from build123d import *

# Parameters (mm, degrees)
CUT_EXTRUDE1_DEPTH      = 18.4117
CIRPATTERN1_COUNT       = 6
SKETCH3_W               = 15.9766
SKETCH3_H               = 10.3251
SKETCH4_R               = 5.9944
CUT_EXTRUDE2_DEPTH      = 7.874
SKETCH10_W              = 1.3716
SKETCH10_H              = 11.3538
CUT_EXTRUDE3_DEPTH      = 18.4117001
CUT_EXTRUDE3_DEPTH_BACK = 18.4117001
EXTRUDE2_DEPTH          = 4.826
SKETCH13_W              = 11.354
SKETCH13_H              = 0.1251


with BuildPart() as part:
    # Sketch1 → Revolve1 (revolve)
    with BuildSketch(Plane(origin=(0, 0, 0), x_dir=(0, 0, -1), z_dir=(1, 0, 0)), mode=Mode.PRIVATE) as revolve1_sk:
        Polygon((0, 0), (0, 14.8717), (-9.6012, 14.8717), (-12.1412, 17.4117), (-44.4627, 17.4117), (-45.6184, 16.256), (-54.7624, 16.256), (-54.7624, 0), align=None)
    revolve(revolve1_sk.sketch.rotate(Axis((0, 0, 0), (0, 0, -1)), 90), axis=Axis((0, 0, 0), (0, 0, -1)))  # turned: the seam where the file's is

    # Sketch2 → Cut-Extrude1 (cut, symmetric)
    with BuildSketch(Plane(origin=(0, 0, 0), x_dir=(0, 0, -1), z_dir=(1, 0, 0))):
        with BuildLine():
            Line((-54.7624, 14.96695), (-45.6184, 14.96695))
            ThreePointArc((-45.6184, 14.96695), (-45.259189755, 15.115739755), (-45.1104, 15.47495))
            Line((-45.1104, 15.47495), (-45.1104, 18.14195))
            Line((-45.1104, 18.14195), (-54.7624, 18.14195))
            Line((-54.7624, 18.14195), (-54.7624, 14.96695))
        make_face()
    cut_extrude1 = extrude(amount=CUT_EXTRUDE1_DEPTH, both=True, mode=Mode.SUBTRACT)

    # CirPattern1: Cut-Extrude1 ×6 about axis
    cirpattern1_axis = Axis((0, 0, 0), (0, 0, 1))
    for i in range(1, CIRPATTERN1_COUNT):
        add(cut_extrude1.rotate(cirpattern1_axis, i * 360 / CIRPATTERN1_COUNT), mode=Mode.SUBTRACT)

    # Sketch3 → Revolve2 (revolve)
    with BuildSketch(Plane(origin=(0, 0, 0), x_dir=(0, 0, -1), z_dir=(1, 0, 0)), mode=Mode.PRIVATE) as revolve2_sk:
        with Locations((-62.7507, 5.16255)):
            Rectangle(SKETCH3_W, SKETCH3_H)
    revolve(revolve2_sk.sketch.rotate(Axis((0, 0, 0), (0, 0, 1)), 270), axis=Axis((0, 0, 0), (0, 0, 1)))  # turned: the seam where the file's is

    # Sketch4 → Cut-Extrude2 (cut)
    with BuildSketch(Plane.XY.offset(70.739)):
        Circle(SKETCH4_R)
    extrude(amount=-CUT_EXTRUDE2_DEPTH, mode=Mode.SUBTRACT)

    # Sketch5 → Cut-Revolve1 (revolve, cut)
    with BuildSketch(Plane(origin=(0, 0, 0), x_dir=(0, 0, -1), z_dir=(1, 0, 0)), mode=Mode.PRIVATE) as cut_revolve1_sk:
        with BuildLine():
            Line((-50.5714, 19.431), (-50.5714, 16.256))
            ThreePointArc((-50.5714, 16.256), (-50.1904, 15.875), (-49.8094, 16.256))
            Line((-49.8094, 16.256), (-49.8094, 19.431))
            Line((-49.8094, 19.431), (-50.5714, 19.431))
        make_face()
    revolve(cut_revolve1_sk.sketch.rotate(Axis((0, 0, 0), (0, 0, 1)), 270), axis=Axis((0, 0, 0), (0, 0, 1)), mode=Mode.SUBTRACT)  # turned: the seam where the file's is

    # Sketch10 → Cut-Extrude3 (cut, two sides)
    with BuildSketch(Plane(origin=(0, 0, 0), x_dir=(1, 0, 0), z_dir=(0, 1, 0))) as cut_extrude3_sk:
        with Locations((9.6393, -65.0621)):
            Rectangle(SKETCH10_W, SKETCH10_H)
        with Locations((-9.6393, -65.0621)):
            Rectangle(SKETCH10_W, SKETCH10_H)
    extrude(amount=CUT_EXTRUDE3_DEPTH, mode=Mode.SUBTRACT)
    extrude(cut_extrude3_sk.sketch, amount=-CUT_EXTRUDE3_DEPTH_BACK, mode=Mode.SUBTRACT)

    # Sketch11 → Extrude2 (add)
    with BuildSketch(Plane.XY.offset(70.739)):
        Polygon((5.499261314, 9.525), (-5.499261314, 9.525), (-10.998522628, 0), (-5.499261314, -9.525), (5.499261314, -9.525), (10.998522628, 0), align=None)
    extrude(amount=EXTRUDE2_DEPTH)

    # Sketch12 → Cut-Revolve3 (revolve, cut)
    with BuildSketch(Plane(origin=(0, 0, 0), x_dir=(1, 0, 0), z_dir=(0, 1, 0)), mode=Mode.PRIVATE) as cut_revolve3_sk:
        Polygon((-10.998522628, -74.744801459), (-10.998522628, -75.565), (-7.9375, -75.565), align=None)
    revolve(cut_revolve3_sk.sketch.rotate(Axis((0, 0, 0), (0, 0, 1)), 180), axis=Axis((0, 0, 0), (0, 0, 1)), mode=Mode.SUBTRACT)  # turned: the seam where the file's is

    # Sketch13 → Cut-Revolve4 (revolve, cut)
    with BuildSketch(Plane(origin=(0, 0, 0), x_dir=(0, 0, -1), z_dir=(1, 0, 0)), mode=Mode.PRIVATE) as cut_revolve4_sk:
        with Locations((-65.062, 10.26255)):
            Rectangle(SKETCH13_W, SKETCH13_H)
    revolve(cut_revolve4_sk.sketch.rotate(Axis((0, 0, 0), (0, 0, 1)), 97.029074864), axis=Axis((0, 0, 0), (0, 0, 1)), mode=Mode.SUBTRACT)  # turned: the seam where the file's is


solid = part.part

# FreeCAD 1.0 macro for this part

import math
import FreeCAD as App
import Part
import Sketcher
Q = App.Units.Quantity


def add_polygon(sketch, points):
    """Adds a closed chain of lines whose ends are joined by coincident constraints."""
    first, n = sketch.GeometryCount, len(points)
    for a, b in zip(points, points[1:] + points[:1]):
        sketch.addGeometry(Part.LineSegment(App.Vector(*a, 0), App.Vector(*b, 0)), False)
    for i in range(n):
        sketch.addConstraint(Sketcher.Constraint("Coincident", first + i, 2, first + (i + 1) % n, 1))

doc = App.newDocument("Part")
body = doc.addObject("PartDesign::Body", "Body")

# Sketch on YZ plane
sketch1 = body.newObject("Sketcher::SketchObject", "Sketch")
sketch1.AttachmentSupport = (doc.getObject("YZ_Plane"), [""])
sketch1.MapMode = "FlatFace"
add_polygon(sketch1, [(0, 0), (14.9, 0), (14.9, 9.6), (17.4, 12.1), (17.4, 44.5), (16.3, 45.6), (16.3, 54.8), (0, 54.8)])  # lines 0-7
sketch1.addConstraint(Sketcher.Constraint("Horizontal", 0))
sketch1.addConstraint(Sketcher.Constraint("Vertical", 1))
sketch1.addConstraint(Sketcher.Constraint("Vertical", 3))
sketch1.addConstraint(Sketcher.Constraint("Vertical", 5))
sketch1.addConstraint(Sketcher.Constraint("Horizontal", 6))
sketch1.addConstraint(Sketcher.Constraint("Vertical", 7))
sketch1.addConstraint(Sketcher.Constraint("Coincident", 7, 2, -1, 1))
sketch1.addConstraint(Sketcher.Constraint("Perpendicular", 2, 4))
sketch1.addConstraint(Sketcher.Constraint("Angle", 2, Q("45 deg")))
sketch1.addConstraint(Sketcher.Constraint("DistanceX", 6, 2, 6, 1, Q("0.64 in")))
sketch1.addConstraint(Sketcher.Constraint("DistanceY", 5, 1, 5, 2, Q("0.36 in")))
sketch1.addConstraint(Sketcher.Constraint("DistanceX", 1, 2, 2, 2, Q("0.1 in")))
sketch1.addConstraint(Sketcher.Constraint("DistanceY", 1, 1, 1, 2, Q("0.378 in")))
sketch1.addConstraint(Sketcher.Constraint("DistanceY", 7, 2, 7, 1, Q("2.156 in")))
sketch1.addConstraint(Sketcher.Constraint("DistanceX", 0, 1, 0, 2, Q("0.5855 in")))
revolution = body.newObject("PartDesign::Revolution", "Revolution")
revolution.Profile = sketch1
revolution.ReferenceAxis = (sketch1, ["V_Axis"])
revolution.Angle = 360

# Sketch on YZ plane
sketch2 = body.newObject("Sketcher::SketchObject", "Sketch001")
sketch2.AttachmentSupport = (doc.getObject("YZ_Plane"), [""])
sketch2.MapMode = "FlatFace"
sketch2.addGeometry(Part.LineSegment(App.Vector(15, 54.8, 0), App.Vector(15, 45.6, 0)), False)
sketch2.addGeometry(Part.ArcOfCircle(Part.Circle(App.Vector(15.5, 45.6, 0), App.Vector(0, 0, 1), 0.5), math.radians(180), math.radians(270)), False)
sketch2.addGeometry(Part.LineSegment(App.Vector(15.5, 45.1, 0), App.Vector(18.1, 45.1, 0)), False)
sketch2.addGeometry(Part.LineSegment(App.Vector(18.1, 45.1, 0), App.Vector(18.1, 54.8, 0)), False)
sketch2.addGeometry(Part.LineSegment(App.Vector(18.1, 54.8, 0), App.Vector(15, 54.8, 0)), False)
sketch2.addConstraint(Sketcher.Constraint("Tangent", 0, 2, 1, 1))
sketch2.addConstraint(Sketcher.Constraint("Tangent", 1, 2, 2, 1))
sketch2.addConstraint(Sketcher.Constraint("Coincident", 2, 2, 3, 1))
sketch2.addConstraint(Sketcher.Constraint("Coincident", 3, 2, 4, 1))
sketch2.addConstraint(Sketcher.Constraint("Coincident", 4, 2, 0, 1))
sketch2.addConstraint(Sketcher.Constraint("Vertical", 0))
sketch2.addConstraint(Sketcher.Constraint("Horizontal", 2))
sketch2.addConstraint(Sketcher.Constraint("Vertical", 3))
sketch2.addConstraint(Sketcher.Constraint("Horizontal", 4))
sketch2.addConstraint(Sketcher.Constraint("Radius", 1, Q("0.02 in")))
sketch2.addConstraint(Sketcher.Constraint("DistanceY", 0, 2, 0, 1, Q("0.36 in")))
sketch2.addConstraint(Sketcher.Constraint("DistanceX", 2, 1, 2, 2, Q("0.105 in")))
sketch2.addConstraint(Sketcher.Constraint("DistanceY", -1, 1, 1, 3, Q("1.796 in")))
sketch2.addConstraint(Sketcher.Constraint("DistanceX", -1, 1, 1, 3, 15.47495))
pocket1 = body.newObject("PartDesign::Pocket", "Pocket")
pocket1.Profile = sketch2
pocket1.Length = 36.8234
pocket1.Midplane = True
doc.recompute()

polarpattern = body.newObject("PartDesign::PolarPattern", "PolarPattern")
polarpattern.Originals = [pocket1]
polarpattern.Axis = (doc.getObject("Z_Axis"), [""])
polarpattern.Angle = 360
polarpattern.Occurrences = 6
body.Tip = polarpattern

# Sketch on YZ plane
sketch3 = body.newObject("Sketcher::SketchObject", "Sketch002")
sketch3.AttachmentSupport = (doc.getObject("YZ_Plane"), [""])
sketch3.MapMode = "FlatFace"
add_polygon(sketch3, [(10, 71), (0, 71), (0, 55), (10, 55)])  # lines 0-3
sketch3.addConstraint(Sketcher.Constraint("Horizontal", 0))
sketch3.addConstraint(Sketcher.Constraint("Vertical", 1))
sketch3.addConstraint(Sketcher.Constraint("Horizontal", 2))
sketch3.addConstraint(Sketcher.Constraint("Vertical", 3))
sketch3.addConstraint(Sketcher.Constraint("PointOnObject", 0, 2, -2))
sketch3.addConstraint(Sketcher.Constraint("DistanceY", 1, 2, 1, 1, Q("0.629 in")))
sketch3.addConstraint(Sketcher.Constraint("DistanceX", 0, 2, 0, 1, Q("0.4065 in")))
sketch3.addConstraint(Sketcher.Constraint("DistanceY", -1, 1, 0, 2, Q("2.785 in")))
revolution2 = body.newObject("PartDesign::Revolution", "Revolution001")
revolution2.Profile = sketch3
revolution2.ReferenceAxis = (sketch3, ["V_Axis"])
revolution2.Angle = 360

# Sketch on XY plane
sketch4 = body.newObject("Sketcher::SketchObject", "Sketch003")
sketch4.AttachmentSupport = (doc.getObject("XY_Plane"), [""])
sketch4.MapMode = "FlatFace"
sketch4.AttachmentOffset = App.Placement(App.Vector(0, 0, 2.785 * 25.4), App.Rotation())
sketch4.addGeometry(Part.Circle(App.Vector(0, 0, 0), App.Vector(0, 0, 1), 6), False)
sketch4.addConstraint(Sketcher.Constraint("Coincident", 0, 3, -1, 1))
sketch4.addConstraint(Sketcher.Constraint("Diameter", 0, Q("0.472 in")))
pocket2 = body.newObject("PartDesign::Pocket", "Pocket001")
pocket2.Profile = sketch4
pocket2.Length = Q("0.31 in")

# Sketch on YZ plane
sketch5 = body.newObject("Sketcher::SketchObject", "Sketch004")
sketch5.AttachmentSupport = (doc.getObject("YZ_Plane"), [""])
sketch5.MapMode = "FlatFace"
sketch5.addGeometry(Part.LineSegment(App.Vector(19.43, 50.57, 0), App.Vector(16.26, 50.57, 0)), False)
sketch5.addGeometry(Part.ArcOfCircle(Part.Circle(App.Vector(16.26, 50.19, 0), App.Vector(0, 0, 1), 0.38), math.radians(90), math.radians(270)), False)
sketch5.addGeometry(Part.LineSegment(App.Vector(16.26, 49.81, 0), App.Vector(19.43, 49.81, 0)), False)
sketch5.addGeometry(Part.LineSegment(App.Vector(19.43, 49.81, 0), App.Vector(19.43, 50.57, 0)), False)
sketch5.addConstraint(Sketcher.Constraint("Tangent", 0, 2, 1, 1))
sketch5.addConstraint(Sketcher.Constraint("Tangent", 1, 2, 2, 1))
sketch5.addConstraint(Sketcher.Constraint("Coincident", 2, 2, 3, 1))
sketch5.addConstraint(Sketcher.Constraint("Coincident", 3, 2, 0, 1))
sketch5.addConstraint(Sketcher.Constraint("Horizontal", 0))
sketch5.addConstraint(Sketcher.Constraint("Horizontal", 2))
sketch5.addConstraint(Sketcher.Constraint("Vertical", 3))
sketch5.addConstraint(Sketcher.Constraint("Radius", 1, Q("0.015 in")))
sketch5.addConstraint(Sketcher.Constraint("DistanceX", 0, 2, 0, 1, Q("0.125 in")))
sketch5.addConstraint(Sketcher.Constraint("DistanceX", -1, 1, 1, 3, Q("0.64 in")))
sketch5.addConstraint(Sketcher.Constraint("DistanceY", -1, 1, 1, 3, Q("1.976 in")))
groove = body.newObject("PartDesign::Groove", "Groove")
groove.Profile = sketch5
groove.ReferenceAxis = (sketch5, ["V_Axis"])
groove.Angle = 360

# Sketch on XZ plane
sketch6 = body.newObject("Sketcher::SketchObject", "Sketch005")
sketch6.AttachmentSupport = (doc.getObject("XZ_Plane"), [""])
sketch6.MapMode = "FlatFace"
add_polygon(sketch6, [(9, 59.4), (9, 70.7), (10.3, 70.7), (10.3, 59.4)])  # lines 0-3
add_polygon(sketch6, [(-10.3, 59.4), (-10.3, 70.7), (-9, 70.7), (-9, 59.4)])  # lines 4-7
sketch6.addConstraint(Sketcher.Constraint("Vertical", 0))
sketch6.addConstraint(Sketcher.Constraint("Horizontal", 1))
sketch6.addConstraint(Sketcher.Constraint("Vertical", 2))
sketch6.addConstraint(Sketcher.Constraint("Horizontal", 3))
sketch6.addConstraint(Sketcher.Constraint("Vertical", 4))
sketch6.addConstraint(Sketcher.Constraint("Horizontal", 5))
sketch6.addConstraint(Sketcher.Constraint("Vertical", 6))
sketch6.addConstraint(Sketcher.Constraint("Horizontal", 7))
sketch6.addConstraint(Sketcher.Constraint("Symmetric", 1, 2, 4, 2, -2))
sketch6.addConstraint(Sketcher.Constraint("Symmetric", 3, 2, 6, 2, -2))
sketch6.addConstraint(Sketcher.Constraint("DistanceX", 1, 1, 1, 2, Q("0.054 in")))
sketch6.addConstraint(Sketcher.Constraint("DistanceY", 0, 1, 0, 2, Q("0.447 in")))
sketch6.addConstraint(Sketcher.Constraint("DistanceY", -1, 1, 0, 2, Q("2.785 in")))
sketch6.addConstraint(Sketcher.Constraint("DistanceX", 4, 2, 0, 2, Q("0.759 in")))
pocket3 = body.newObject("PartDesign::Pocket", "Pocket002")
pocket3.Profile = sketch6
pocket3.Type = "ThroughAll"
pocket3.Midplane = True

# Sketch on XY plane
sketch7 = body.newObject("Sketcher::SketchObject", "Sketch006")
sketch7.AttachmentSupport = (doc.getObject("XY_Plane"), [""])
sketch7.MapMode = "FlatFace"
sketch7.AttachmentOffset = App.Placement(App.Vector(0, 0, 2.785 * 25.4), App.Rotation())
add_polygon(sketch7, [(5, 10), (-5, 10), (-11, 0), (-5, -10), (5, -10), (11, 0)])  # lines 0-5
sketch7.addConstraint(Sketcher.Constraint("Horizontal", 0))
sketch7.addConstraint(Sketcher.Constraint("Horizontal", 3))
sketch7.addConstraint(Sketcher.Constraint("Symmetric", 0, 2, 3, 2, -1, 1))
sketch7.addConstraint(Sketcher.Constraint("Symmetric", 1, 2, 4, 2, -1, 1))
sketch7.addConstraint(Sketcher.Constraint("PointOnObject", 1, 2, -1))
sketch7.addConstraint(Sketcher.Constraint("Parallel", 2, 5))
sketch7.addConstraint(Sketcher.Constraint("Vertical", 0, 2, 2, 2))
sketch7.addConstraint(Sketcher.Constraint("Angle", 1, Q("-120 deg")))
sketch7.addConstraint(Sketcher.Constraint("DistanceY", 2, 2, 0, 2, Q("0.75 in")))
sketch7.addConstraint(Sketcher.Constraint("DistanceX", 0, 2, 0, 1, 10.998523))
pad1 = body.newObject("PartDesign::Pad", "Pad")
pad1.Profile = sketch7
pad1.Length = Q("0.19 in")

# Sketch on XZ plane
sketch8 = body.newObject("Sketcher::SketchObject", "Sketch007")
sketch8.AttachmentSupport = (doc.getObject("XZ_Plane"), [""])
sketch8.MapMode = "FlatFace"
add_polygon(sketch8, [(-11, 74.7), (-11, 75.6), (-7.9, 75.6)])  # lines 0-2
sketch8.addConstraint(Sketcher.Constraint("Vertical", 0))
sketch8.addConstraint(Sketcher.Constraint("Horizontal", 1))
sketch8.addConstraint(Sketcher.Constraint("Angle", 2, Q("-165 deg")))
sketch8.addConstraint(Sketcher.Constraint("DistanceY", -1, 1, 0, 2, Q("2.975 in")))
sketch8.addConstraint(Sketcher.Constraint("DistanceX", 1, 2, -1, 1, Q("0.3125 in")))
sketch8.addConstraint(Sketcher.Constraint("DistanceY", 0, 1, 0, 2, 0.820199))
groove2 = body.newObject("PartDesign::Groove", "Groove001")
groove2.Profile = sketch8
groove2.ReferenceAxis = (sketch8, ["V_Axis"])
groove2.Angle = 360

# Sketch on YZ plane
sketch9 = body.newObject("Sketcher::SketchObject", "Sketch008")
sketch9.AttachmentSupport = (doc.getObject("YZ_Plane"), [""])
sketch9.MapMode = "FlatFace"
add_polygon(sketch9, [(10.33, 70.74), (10.2, 70.74), (10.2, 59.38), (10.33, 59.38)])  # lines 0-3
sketch9.addConstraint(Sketcher.Constraint("Horizontal", 0))
sketch9.addConstraint(Sketcher.Constraint("Vertical", 1))
sketch9.addConstraint(Sketcher.Constraint("Horizontal", 2))
sketch9.addConstraint(Sketcher.Constraint("Vertical", 3))
sketch9.addConstraint(Sketcher.Constraint("DistanceY", -1, 1, 0, 2, Q("2.785 in")))
sketch9.addConstraint(Sketcher.Constraint("DistanceX", 0, 2, 0, 1, 0.1251))
sketch9.addConstraint(Sketcher.Constraint("DistanceY", 1, 2, 1, 1, 11.354))
sketch9.addConstraint(Sketcher.Constraint("DistanceX", -1, 1, 2, 2, Q("0.4065 in")))
groove3 = body.newObject("PartDesign::Groove", "Groove002")
groove3.Profile = sketch9
groove3.ReferenceAxis = (sketch9, ["V_Axis"])
groove3.Angle = 360

doc.recompute()
